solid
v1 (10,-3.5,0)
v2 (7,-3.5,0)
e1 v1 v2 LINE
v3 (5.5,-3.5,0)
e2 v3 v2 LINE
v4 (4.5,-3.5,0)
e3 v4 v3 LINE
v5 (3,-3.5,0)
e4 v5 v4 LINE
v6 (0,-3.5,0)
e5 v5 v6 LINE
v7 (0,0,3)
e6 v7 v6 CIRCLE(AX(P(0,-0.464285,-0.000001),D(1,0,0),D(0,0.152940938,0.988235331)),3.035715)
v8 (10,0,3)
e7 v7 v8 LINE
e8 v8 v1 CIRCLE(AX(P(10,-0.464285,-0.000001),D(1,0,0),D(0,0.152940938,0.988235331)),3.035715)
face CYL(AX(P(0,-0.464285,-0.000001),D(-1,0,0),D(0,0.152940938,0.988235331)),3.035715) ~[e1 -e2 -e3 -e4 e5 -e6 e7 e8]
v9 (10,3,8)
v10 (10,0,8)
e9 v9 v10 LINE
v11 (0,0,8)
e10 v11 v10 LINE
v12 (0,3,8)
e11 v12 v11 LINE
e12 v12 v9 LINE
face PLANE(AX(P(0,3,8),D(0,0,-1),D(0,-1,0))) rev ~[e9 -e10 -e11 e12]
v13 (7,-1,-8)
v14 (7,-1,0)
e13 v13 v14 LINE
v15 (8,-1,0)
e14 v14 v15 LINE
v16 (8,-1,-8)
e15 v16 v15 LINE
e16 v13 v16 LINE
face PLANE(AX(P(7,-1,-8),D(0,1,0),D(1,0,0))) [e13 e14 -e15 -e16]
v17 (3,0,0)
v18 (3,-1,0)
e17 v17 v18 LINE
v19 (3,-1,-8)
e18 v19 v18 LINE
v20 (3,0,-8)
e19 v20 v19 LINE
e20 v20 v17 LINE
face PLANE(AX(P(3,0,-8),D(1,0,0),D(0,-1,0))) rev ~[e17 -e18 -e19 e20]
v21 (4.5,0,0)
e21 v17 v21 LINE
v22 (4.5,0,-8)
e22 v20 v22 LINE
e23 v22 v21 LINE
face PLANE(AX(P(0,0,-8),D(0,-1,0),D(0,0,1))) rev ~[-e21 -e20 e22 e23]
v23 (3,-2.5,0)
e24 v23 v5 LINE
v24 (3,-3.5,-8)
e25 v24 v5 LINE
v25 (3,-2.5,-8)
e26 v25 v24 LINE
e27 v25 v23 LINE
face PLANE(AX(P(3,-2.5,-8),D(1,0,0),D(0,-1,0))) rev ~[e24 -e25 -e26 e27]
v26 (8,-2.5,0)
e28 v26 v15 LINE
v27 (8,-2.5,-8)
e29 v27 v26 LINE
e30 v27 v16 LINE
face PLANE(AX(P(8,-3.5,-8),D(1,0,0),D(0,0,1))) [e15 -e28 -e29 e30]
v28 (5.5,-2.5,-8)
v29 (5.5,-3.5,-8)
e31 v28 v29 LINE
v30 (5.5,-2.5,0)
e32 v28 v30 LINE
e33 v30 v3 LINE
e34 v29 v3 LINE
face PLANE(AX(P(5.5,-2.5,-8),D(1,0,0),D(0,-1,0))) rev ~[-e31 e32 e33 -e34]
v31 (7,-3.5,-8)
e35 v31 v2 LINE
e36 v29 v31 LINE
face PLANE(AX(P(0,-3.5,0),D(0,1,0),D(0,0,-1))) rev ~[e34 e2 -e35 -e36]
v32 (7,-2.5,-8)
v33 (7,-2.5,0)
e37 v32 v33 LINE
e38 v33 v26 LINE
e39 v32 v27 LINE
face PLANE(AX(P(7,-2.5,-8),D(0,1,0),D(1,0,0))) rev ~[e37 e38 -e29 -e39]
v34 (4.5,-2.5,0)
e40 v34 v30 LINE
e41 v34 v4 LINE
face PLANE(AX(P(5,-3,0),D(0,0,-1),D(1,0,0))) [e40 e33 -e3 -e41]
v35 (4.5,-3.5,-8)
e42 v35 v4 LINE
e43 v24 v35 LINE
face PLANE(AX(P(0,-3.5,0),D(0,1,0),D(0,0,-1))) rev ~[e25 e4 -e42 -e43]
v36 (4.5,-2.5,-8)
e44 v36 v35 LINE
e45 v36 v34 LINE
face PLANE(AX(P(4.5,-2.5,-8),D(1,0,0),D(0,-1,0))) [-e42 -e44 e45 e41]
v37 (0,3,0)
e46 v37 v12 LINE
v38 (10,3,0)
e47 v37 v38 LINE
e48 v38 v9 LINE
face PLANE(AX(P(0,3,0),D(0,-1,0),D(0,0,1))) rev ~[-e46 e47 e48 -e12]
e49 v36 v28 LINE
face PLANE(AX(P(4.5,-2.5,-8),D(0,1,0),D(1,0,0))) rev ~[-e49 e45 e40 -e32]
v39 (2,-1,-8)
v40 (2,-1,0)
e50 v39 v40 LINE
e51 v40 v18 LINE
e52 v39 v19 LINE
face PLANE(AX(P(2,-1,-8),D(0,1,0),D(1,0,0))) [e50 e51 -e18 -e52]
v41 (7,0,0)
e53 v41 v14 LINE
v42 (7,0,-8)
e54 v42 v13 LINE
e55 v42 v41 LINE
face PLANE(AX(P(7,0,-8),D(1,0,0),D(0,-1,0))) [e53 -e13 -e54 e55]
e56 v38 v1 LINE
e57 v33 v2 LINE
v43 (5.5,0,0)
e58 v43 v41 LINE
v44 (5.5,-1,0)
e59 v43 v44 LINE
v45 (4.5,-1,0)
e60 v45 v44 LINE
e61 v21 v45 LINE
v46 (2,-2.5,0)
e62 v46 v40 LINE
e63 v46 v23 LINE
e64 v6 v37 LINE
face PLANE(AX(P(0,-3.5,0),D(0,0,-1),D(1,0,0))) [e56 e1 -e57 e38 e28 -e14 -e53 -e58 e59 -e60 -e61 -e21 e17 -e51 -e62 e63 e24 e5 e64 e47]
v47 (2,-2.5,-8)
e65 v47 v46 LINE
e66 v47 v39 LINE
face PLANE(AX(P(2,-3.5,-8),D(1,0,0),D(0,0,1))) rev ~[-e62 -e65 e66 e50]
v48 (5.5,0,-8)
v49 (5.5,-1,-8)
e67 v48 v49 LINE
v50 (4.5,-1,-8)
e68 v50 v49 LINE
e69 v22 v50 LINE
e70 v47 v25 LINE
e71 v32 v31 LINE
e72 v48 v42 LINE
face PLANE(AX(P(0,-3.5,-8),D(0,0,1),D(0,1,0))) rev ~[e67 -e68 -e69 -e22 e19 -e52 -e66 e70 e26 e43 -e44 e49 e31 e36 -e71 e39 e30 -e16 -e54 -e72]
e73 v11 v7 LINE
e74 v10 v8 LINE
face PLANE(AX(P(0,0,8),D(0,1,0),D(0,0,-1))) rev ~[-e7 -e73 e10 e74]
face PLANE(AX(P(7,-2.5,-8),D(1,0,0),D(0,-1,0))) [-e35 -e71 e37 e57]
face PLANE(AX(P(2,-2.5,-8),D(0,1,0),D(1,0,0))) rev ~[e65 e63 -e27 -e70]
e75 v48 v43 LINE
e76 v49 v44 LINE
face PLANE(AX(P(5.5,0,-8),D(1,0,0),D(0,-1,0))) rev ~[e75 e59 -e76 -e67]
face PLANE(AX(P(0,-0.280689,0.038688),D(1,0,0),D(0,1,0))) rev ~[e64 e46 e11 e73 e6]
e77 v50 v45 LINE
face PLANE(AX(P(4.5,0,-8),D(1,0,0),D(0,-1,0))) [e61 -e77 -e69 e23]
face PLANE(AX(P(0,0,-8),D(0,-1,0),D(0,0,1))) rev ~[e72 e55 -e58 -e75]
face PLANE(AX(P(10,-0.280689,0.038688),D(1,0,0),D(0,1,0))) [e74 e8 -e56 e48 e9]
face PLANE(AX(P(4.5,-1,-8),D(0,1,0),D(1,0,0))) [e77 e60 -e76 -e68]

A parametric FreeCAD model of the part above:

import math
import FreeCAD as App
import Part
import Sketcher

V = App.Vector


def add_polygon(sketch, points):
    """Adds a closed chain of lines whose ends are joined by coincident constraints."""
    first, n = sketch.GeometryCount, len(points)
    for a, b in zip(points, points[1:] + points[:1]):
        sketch.addGeometry(Part.LineSegment(App.Vector(*a, 0), App.Vector(*b, 0)), False)
    for i in range(n):
        sketch.addConstraint(Sketcher.Constraint("Coincident", first + i, 2, first + (i + 1) % n, 1))

doc = App.newDocument("Part")
body = doc.addObject("PartDesign::Body", "Body")

# Sketch on YZ plane
sketch1 = body.newObject("Sketcher::SketchObject", "Sketch")
sketch1.AttachmentSupport = (doc.getObject("YZ_Plane"), [""])
sketch1.MapMode = "FlatFace"
sketch1.addGeometry(Part.LineSegment(V(-3.5, -8, 0), V(0, -8, 0)), False)
sketch1.addGeometry(Part.LineSegment(V(0, -8, 0), V(0, 0, 0)), False)
sketch1.addGeometry(Part.LineSegment(V(0, 0, 0), V(3, 0, 0)), False)
sketch1.addGeometry(Part.LineSegment(V(3, 0, 0), V(3, 8, 0)), False)
sketch1.addGeometry(Part.LineSegment(V(3, 8, 0), V(0, 8, 0)), False)
sketch1.addGeometry(Part.LineSegment(V(0, 8, 0), V(0, 3, 0)), False)
sketch1.addGeometry(Part.ArcOfCircle(Part.Circle(V(-0.5, 0, 0), V(0, 0, 1), 3), math.radians(81), math.radians(180)), False)
sketch1.addGeometry(Part.LineSegment(V(-3.5, 0, 0), V(-3.5, -8, 0)), False)
sketch1.addConstraint(Sketcher.Constraint("Coincident", 0, 2, 1, 1))
sketch1.addConstraint(Sketcher.Constraint("Coincident", 1, 2, 2, 1))
sketch1.addConstraint(Sketcher.Constraint("Coincident", 2, 2, 3, 1))
sketch1.addConstraint(Sketcher.Constraint("Coincident", 3, 2, 4, 1))
sketch1.addConstraint(Sketcher.Constraint("Coincident", 4, 2, 5, 1))
sketch1.addConstraint(Sketcher.Constraint("Coincident", 5, 2, 6, 1))
sketch1.addConstraint(Sketcher.Constraint("Tangent", 6, 2, 7, 1))
sketch1.addConstraint(Sketcher.Constraint("Coincident", 7, 2, 0, 1))
sketch1.addConstraint(Sketcher.Constraint("Horizontal", 0))
sketch1.addConstraint(Sketcher.Constraint("Vertical", 1))
sketch1.addConstraint(Sketcher.Constraint("Horizontal", 2))
sketch1.addConstraint(Sketcher.Constraint("Vertical", 3))
sketch1.addConstraint(Sketcher.Constraint("Horizontal", 4))
sketch1.addConstraint(Sketcher.Constraint("Vertical", 5))
sketch1.addConstraint(Sketcher.Constraint("Vertical", 7))
sketch1.addConstraint(Sketcher.Constraint("Coincident", 1, 2, -1, 1))
sketch1.addConstraint(Sketcher.Constraint("Symmetric", 0, 2, 4, 2, -1, 1))
sketch1.addConstraint(Sketcher.Constraint("PointOnObject", 6, 3, -1))
sketch1.addConstraint(Sketcher.Constraint("DistanceX", 2, 1, 2, 2, 3.0))
sketch1.addConstraint(Sketcher.Constraint("DistanceY", 1, 1, 1, 2, 8.0))
sketch1.addConstraint(Sketcher.Constraint("DistanceY", 5, 2, 5, 1, 5.0))
sketch1.addConstraint(Sketcher.Constraint("DistanceX", 0, 1, 0, 2, 3.5))
pad1 = body.newObject("PartDesign::Pad", "Pad")
pad1.Profile = sketch1
pad1.Length = 10

# Sketch on XZ plane
sketch2 = body.newObject("Sketcher::SketchObject", "Sketch001")
sketch2.AttachmentSupport = (doc.getObject("XZ_Plane"), [""])
sketch2.MapMode = "FlatFace"
sketch2.AttachmentOffset = App.Placement(V(0, 0, 3.5), App.Rotation())
add_polygon(sketch2, [(0, 0), (0, -8), (2, -8), (2, 0)])  # lines 0-3
add_polygon(sketch2, [(8, 0), (8, -8), (10, -8), (10, 0)])  # lines 4-7
sketch2.addConstraint(Sketcher.Constraint("Vertical", 0))
sketch2.addConstraint(Sketcher.Constraint("Horizontal", 1))
sketch2.addConstraint(Sketcher.Constraint("Vertical", 2))
sketch2.addConstraint(Sketcher.Constraint("Horizontal", 3))
sketch2.addConstraint(Sketcher.Constraint("Vertical", 4))
sketch2.addConstraint(Sketcher.Constraint("Horizontal", 5))
sketch2.addConstraint(Sketcher.Constraint("Vertical", 6))
sketch2.addConstraint(Sketcher.Constraint("Horizontal", 7))
sketch2.addConstraint(Sketcher.Constraint("Coincident", 3, 2, -1, 1))
sketch2.addConstraint(Sketcher.Constraint("PointOnObject", 6, 2, -1))
sketch2.addConstraint(Sketcher.Constraint("Horizontal", 1, 2, 4, 2))
sketch2.addConstraint(Sketcher.Constraint("Equal", 3, 5))
sketch2.addConstraint(Sketcher.Constraint("DistanceX", 1, 1, 1, 2, 2.0))
sketch2.addConstraint(Sketcher.Constraint("DistanceY", 0, 2, 0, 1, 8.0))
sketch2.addConstraint(Sketcher.Constraint("DistanceX", -1, 1, 4, 2, 8.0))
pocket1 = body.newObject("PartDesign::Pocket", "Pocket")
pocket1.Profile = sketch2
pocket1.Type = "ThroughAll"

# Sketch on XY plane
sketch3 = body.newObject("Sketcher::SketchObject", "Sketch002")
sketch3.AttachmentSupport = (doc.getObject("XY_Plane"), [""])
sketch3.MapMode = "FlatFace"
sketch3.AttachmentOffset = App.Placement(V(0, 0, -8), App.Rotation())
add_polygon(sketch3, [(2, -3.5), (2, -2.5), (3, -2.5), (3, -3.5)])  # lines 0-3
add_polygon(sketch3, [(2, -1), (2, 0), (3, 0), (3, -1)])  # lines 4-7
add_polygon(sketch3, [(7, -1), (7, 0), (8, 0), (8, -1)])  # lines 8-11
add_polygon(sketch3, [(7, -3.5), (7, -2.5), (8, -2.5), (8, -3.5)])  # lines 12-15
add_polygon(sketch3, [(4.5, -3.5), (4.5, -2.5), (5.5, -2.5), (5.5, -3.5)])  # lines 16-19
add_polygon(sketch3, [(4.5, -1), (4.5, 0), (5.5, 0), (5.5, -1)])  # lines 20-23
sketch3.addConstraint(Sketcher.Constraint("Vertical", 0))
sketch3.addConstraint(Sketcher.Constraint("Horizontal", 1))
sketch3.addConstraint(Sketcher.Constraint("Vertical", 2))
sketch3.addConstraint(Sketcher.Constraint("Horizontal", 3))
sketch3.addConstraint(Sketcher.Constraint("Vertical", 4))
sketch3.addConstraint(Sketcher.Constraint("Horizontal", 5))
sketch3.addConstraint(Sketcher.Constraint("Vertical", 6))
sketch3.addConstraint(Sketcher.Constraint("Horizontal", 7))
sketch3.addConstraint(Sketcher.Constraint("Vertical", 8))
sketch3.addConstraint(Sketcher.Constraint("Horizontal", 9))
sketch3.addConstraint(Sketcher.Constraint("Vertical", 10))
sketch3.addConstraint(Sketcher.Constraint("Horizontal", 11))
sketch3.addConstraint(Sketcher.Constraint("Vertical", 12))
sketch3.addConstraint(Sketcher.Constraint("Horizontal", 13))
sketch3.addConstraint(Sketcher.Constraint("Vertical", 14))
sketch3.addConstraint(Sketcher.Constraint("Horizontal", 15))
sketch3.addConstraint(Sketcher.Constraint("Vertical", 16))
sketch3.addConstraint(Sketcher.Constraint("Horizontal", 17))
sketch3.addConstraint(Sketcher.Constraint("Vertical", 18))
sketch3.addConstraint(Sketcher.Constraint("Horizontal", 19))
sketch3.addConstraint(Sketcher.Constraint("Vertical", 20))
sketch3.addConstraint(Sketcher.Constraint("Horizontal", 21))
sketch3.addConstraint(Sketcher.Constraint("Vertical", 22))
sketch3.addConstraint(Sketcher.Constraint("Horizontal", 23))
sketch3.addConstraint(Sketcher.Constraint("PointOnObject", 4, 2, -1))
sketch3.addConstraint(Sketcher.Constraint("PointOnObject", 8, 2, -1))
sketch3.addConstraint(Sketcher.Constraint("PointOnObject", 20, 2, -1))
sketch3.addConstraint(Sketcher.Constraint("Horizontal", 7, 2, 10, 2))
sketch3.addConstraint(Sketcher.Constraint("Horizontal", 1, 2, 12, 2))
sketch3.addConstraint(Sketcher.Constraint("Horizontal", 3, 2, 14, 2))
sketch3.addConstraint(Sketcher.Constraint("Horizontal", 13, 2, 16, 2))
sketch3.addConstraint(Sketcher.Constraint("Horizontal", 15, 2, 18, 2))
sketch3.addConstraint(Sketcher.Constraint("Horizontal", 11, 2, 22, 2))
sketch3.addConstraint(Sketcher.Constraint("Vertical", 3, 2, 4, 2))
sketch3.addConstraint(Sketcher.Constraint("Vertical", 2, 2, 5, 2))
sketch3.addConstraint(Sketcher.Constraint("Vertical", 11, 2, 12, 2))
sketch3.addConstraint(Sketcher.Constraint("Vertical", 10, 2, 13, 2))
sketch3.addConstraint(Sketcher.Constraint("Vertical", 19, 2, 20, 2))
sketch3.addConstraint(Sketcher.Constraint("Vertical", 18, 2, 21, 2))
sketch3.addConstraint(Sketcher.Constraint("Equal", 7, 9))
sketch3.addConstraint(Sketcher.Constraint("Equal", 15, 17))
sketch3.addConstraint(Sketcher.Constraint("Equal", 23, 0))
sketch3.addConstraint(Sketcher.Constraint("Equal", 2, 4))
sketch3.addConstraint(Sketcher.Constraint("DistanceX", 1, 1, 1, 2, 1.0))
sketch3.addConstraint(Sketcher.Constraint("DistanceX", -1, 1, 0, 2, 2.0))
sketch3.addConstraint(Sketcher.Constraint("DistanceX", -1, 1, 8, 2, 7.0))
sketch3.addConstraint(Sketcher.Constraint("DistanceY", 0, 2, -1, 1, 2.5))
sketch3.addConstraint(Sketcher.Constraint("DistanceX", -1, 1, 16, 2, 4.5))
pocket2 = body.newObject("PartDesign::Pocket", "Pocket001")
pocket2.Profile = sketch3
pocket2.Length = 8
pocket2.Reversed = True

doc.recompute()
